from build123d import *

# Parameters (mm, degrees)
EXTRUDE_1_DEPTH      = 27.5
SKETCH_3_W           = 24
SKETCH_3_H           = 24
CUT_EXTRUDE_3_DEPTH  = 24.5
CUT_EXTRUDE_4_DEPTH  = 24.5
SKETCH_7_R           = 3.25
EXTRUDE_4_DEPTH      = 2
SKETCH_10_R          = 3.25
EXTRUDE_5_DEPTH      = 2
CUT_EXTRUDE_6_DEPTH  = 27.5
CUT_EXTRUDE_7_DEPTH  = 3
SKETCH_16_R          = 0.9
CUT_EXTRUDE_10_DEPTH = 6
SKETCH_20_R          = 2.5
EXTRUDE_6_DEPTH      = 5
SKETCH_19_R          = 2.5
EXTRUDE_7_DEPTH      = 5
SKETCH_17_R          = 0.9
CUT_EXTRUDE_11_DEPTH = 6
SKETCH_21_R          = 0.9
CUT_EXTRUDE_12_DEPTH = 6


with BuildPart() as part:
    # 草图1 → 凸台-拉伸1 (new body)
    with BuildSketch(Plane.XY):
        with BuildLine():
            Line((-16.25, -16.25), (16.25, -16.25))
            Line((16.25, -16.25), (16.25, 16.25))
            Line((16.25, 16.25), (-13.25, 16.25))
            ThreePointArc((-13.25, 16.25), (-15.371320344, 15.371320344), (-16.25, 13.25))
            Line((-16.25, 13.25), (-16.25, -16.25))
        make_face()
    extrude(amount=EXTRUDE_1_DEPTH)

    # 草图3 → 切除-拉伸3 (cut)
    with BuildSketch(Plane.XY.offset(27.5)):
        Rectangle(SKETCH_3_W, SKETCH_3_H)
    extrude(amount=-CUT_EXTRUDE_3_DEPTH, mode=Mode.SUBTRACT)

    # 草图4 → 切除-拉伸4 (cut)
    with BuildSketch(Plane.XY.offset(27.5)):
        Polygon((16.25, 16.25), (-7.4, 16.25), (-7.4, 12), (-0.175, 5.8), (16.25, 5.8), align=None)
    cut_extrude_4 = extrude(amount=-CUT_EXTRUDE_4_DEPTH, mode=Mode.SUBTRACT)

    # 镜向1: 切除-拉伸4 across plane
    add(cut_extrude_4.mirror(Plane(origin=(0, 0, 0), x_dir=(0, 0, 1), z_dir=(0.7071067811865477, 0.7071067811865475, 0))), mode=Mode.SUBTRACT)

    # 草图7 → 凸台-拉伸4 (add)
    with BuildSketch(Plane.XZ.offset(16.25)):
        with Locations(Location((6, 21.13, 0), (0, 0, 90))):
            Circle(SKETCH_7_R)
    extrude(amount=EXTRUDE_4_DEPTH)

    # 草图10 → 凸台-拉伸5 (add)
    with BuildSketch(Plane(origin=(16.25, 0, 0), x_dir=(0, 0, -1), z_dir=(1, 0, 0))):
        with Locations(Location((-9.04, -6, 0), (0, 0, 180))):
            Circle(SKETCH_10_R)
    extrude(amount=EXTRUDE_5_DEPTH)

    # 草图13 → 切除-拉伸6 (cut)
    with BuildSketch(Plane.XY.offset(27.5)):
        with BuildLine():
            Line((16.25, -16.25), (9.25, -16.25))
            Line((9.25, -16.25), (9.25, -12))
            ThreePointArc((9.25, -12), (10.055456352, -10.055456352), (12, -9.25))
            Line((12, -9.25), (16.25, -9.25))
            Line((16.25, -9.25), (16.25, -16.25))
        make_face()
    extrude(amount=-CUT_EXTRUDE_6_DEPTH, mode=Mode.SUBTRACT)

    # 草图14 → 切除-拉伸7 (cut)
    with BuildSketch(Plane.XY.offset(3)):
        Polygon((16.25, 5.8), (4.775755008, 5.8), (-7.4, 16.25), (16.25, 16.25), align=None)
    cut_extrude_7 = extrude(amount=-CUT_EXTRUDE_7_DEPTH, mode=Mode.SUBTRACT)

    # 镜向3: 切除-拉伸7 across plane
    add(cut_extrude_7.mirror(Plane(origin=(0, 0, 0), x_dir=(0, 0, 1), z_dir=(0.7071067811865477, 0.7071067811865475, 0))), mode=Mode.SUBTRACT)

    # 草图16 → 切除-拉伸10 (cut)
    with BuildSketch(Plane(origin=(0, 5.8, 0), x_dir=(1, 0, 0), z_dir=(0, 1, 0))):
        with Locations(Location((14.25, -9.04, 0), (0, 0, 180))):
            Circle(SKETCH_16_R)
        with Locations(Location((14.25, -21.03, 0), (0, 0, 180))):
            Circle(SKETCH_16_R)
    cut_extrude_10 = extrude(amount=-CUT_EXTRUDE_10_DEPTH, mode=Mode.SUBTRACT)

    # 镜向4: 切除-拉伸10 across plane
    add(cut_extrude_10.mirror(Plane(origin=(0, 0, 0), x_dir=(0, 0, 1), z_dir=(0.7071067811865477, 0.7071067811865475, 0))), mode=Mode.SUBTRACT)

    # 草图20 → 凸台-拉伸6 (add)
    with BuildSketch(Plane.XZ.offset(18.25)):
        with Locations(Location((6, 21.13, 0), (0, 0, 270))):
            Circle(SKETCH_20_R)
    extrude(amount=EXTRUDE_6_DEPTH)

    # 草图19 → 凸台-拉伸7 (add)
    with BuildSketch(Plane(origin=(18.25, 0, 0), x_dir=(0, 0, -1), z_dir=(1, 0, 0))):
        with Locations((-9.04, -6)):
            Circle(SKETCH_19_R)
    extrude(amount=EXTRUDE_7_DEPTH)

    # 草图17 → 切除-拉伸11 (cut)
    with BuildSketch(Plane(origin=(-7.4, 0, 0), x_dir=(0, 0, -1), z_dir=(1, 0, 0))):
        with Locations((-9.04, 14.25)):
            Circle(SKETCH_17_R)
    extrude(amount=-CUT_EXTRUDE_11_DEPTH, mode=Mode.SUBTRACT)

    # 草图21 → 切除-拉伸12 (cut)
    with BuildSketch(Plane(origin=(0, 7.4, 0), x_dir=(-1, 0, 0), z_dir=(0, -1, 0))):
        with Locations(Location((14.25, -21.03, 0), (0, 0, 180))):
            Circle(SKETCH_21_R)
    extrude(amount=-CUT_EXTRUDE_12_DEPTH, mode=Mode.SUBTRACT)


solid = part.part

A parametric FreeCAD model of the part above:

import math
import FreeCAD as App
import Part
import Sketcher
from FreeCAD import Vector
Q = App.Units.Quantity

doc = App.newDocument("Part")
params = doc.addObject("Spreadsheet::Sheet", "Params")
for row, (alias, value) in enumerate([
    ("sketch1_radius", "3 mm"),
    ("sketch1_width", "32.5 mm"),
    ("pad1_length", "27.5 mm"),
    ("sketch2_width", "24 mm"),
    ("pocket1_length", "24.5 mm"),
    ("sketch3_width", "23.65 mm"),
    ("sketch3_height", "4.25 mm"),
    ("sketch3_height2", "10.45 mm"),
    ("pocket2_length", "24.5 mm"),
    ("sketch4_diameter", "6.5 mm"),
    ("pad2_length", "2 mm"),
    ("sketch5_diameter", "6.5 mm"),
    ("pad3_length", "2 mm"),
    ("sketch6_width", "7 mm"),
    ("sketch6_radius", "2.75 mm"),
    ("pocket3_length", "27.5 mm"),
    ("sketch7_width", "23.65 mm"),
    ("sketch7_height", "10.45 mm"),
    ("pocket4_length", "3 mm"),
    ("sketch8_diameter", "1.8 mm"),
    ("pocket5_length", "6 mm"),
    ("sketch9_diameter", "5 mm"),
    ("pad4_length", "5 mm"),
    ("sketch10_diameter", "5 mm"),
    ("pad5_length", "5 mm"),
    ("sketch11_diameter", "1.8 mm"),
    ("pocket6_length", "6 mm"),
    ("sketch12_diameter", "1.8 mm"),
    ("pocket7_length", "6 mm"),
], start=1):
    params.set(f"A{row}", alias)
    params.set(f"B{row}", "=" + value)
    params.setAlias(f"B{row}", alias)

body = doc.addObject("PartDesign::Body", "Body")

# Sketch on XY plane
sketch1 = body.newObject("Sketcher::SketchObject", "Sketch")
sketch1.AttachmentSupport = (doc.getObject("XY_Plane"), [""])
sketch1.MapMode = "FlatFace"
sketch1.addGeometry(Part.LineSegment(Vector(-16.2, -16.2, 0), Vector(16.2, -16.2, 0)), False)
sketch1.addGeometry(Part.LineSegment(Vector(16.2, -16.2, 0), Vector(16.2, 16.2, 0)), False)
sketch1.addGeometry(Part.LineSegment(Vector(16.2, 16.2, 0), Vector(-13.2, 16.2, 0)), False)
sketch1.addGeometry(Part.ArcOfCircle(Part.Circle(Vector(-13.3, 13.3, 0), Vector(0, 0, 1), 3), math.radians(90), math.radians(180)), False)
sketch1.addGeometry(Part.LineSegment(Vector(-16.2, 13.2, 0), Vector(-16.2, -16.2, 0)), False)
sketch1.addConstraint(Sketcher.Constraint("Coincident", 0, 2, 1, 1))
sketch1.addConstraint(Sketcher.Constraint("Coincident", 1, 2, 2, 1))
sketch1.addConstraint(Sketcher.Constraint("Tangent", 2, 2, 3, 1))
sketch1.addConstraint(Sketcher.Constraint("Tangent", 3, 2, 4, 1))
sketch1.addConstraint(Sketcher.Constraint("Coincident", 4, 2, 0, 1))
sketch1.addConstraint(Sketcher.Constraint("Horizontal", 0))
sketch1.addConstraint(Sketcher.Constraint("Vertical", 1))
sketch1.addConstraint(Sketcher.Constraint("Horizontal", 2))
sketch1.addConstraint(Sketcher.Constraint("Vertical", 4))
sketch1.addConstraint(Sketcher.Constraint("Symmetric", 1, 2, 4, 2, -1, 1))
sketch1.addConstraint(Sketcher.Constraint("Equal", 0, 1))
sketch1.addConstraint(Sketcher.Constraint("Radius", 3, Q("3 mm")))
sketch1.addConstraint(Sketcher.Constraint("DistanceX", 0, 1, 0, 2, Q("32.5 mm")))
sketch1.setExpression("Constraints[11]", "Params.sketch1_radius")
sketch1.setExpression("Constraints[12]", "Params.sketch1_width")
pad1 = body.newObject("PartDesign::Pad", "Pad")
pad1.Profile = sketch1
pad1.setExpression("Length", "Params.pad1_length")

# Sketch on XY plane
sketch2 = body.newObject("Sketcher::SketchObject", "Sketch001")
sketch2.AttachmentSupport = (doc.getObject("XY_Plane"), [""])
sketch2.MapMode = "FlatFace"
sketch2.AttachmentOffset = App.Placement(Vector(0, 0, 27.5), App.Rotation())
sketch2.addGeometry(Part.LineSegment(Vector(-12, 12, 0), Vector(-12, -12, 0)), False)
sketch2.addGeometry(Part.LineSegment(Vector(-12, -12, 0), Vector(12, -12, 0)), False)
sketch2.addGeometry(Part.LineSegment(Vector(12, -12, 0), Vector(12, 12, 0)), False)
sketch2.addGeometry(Part.LineSegment(Vector(12, 12, 0), Vector(-12, 12, 0)), False)
sketch2.addConstraint(Sketcher.Constraint("Coincident", 0, 2, 1, 1))
sketch2.addConstraint(Sketcher.Constraint("Coincident", 1, 2, 2, 1))
sketch2.addConstraint(Sketcher.Constraint("Coincident", 2, 2, 3, 1))
sketch2.addConstraint(Sketcher.Constraint("Coincident", 3, 2, 0, 1))
sketch2.addConstraint(Sketcher.Constraint("Vertical", 0))
sketch2.addConstraint(Sketcher.Constraint("Horizontal", 1))
sketch2.addConstraint(Sketcher.Constraint("Vertical", 2))
sketch2.addConstraint(Sketcher.Constraint("Horizontal", 3))
sketch2.addConstraint(Sketcher.Constraint("Symmetric", 0, 2, 2, 2, -1, 1))
sketch2.addConstraint(Sketcher.Constraint("Equal", 3, 0))
sketch2.addConstraint(Sketcher.Constraint("DistanceX", 1, 1, 1, 2, Q("24 mm")))
sketch2.setExpression("Constraints[10]", "Params.sketch2_width")
pocket1 = body.newObject("PartDesign::Pocket", "Pocket")
pocket1.Profile = sketch2
pocket1.setExpression("Length", "Params.pocket1_length")

# Sketch on XY plane
sketch3 = body.newObject("Sketcher::SketchObject", "Sketch002")
sketch3.AttachmentSupport = (doc.getObject("XY_Plane"), [""])
sketch3.MapMode = "FlatFace"
sketch3.AttachmentOffset = App.Placement(Vector(0, 0, 27.5), App.Rotation())
sketch3.addGeometry(Part.LineSegment(Vector(16.2, 16.2, 0), Vector(-7.4, 16.2, 0)), False)
sketch3.addGeometry(Part.LineSegment(Vector(-7.4, 16.2, 0), Vector(-7.4, 12, 0)), False)
sketch3.addGeometry(Part.LineSegment(Vector(-7.4, 12, 0), Vector(-0.2, 5.8, 0)), False)
sketch3.addGeometry(Part.LineSegment(Vector(-0.2, 5.8, 0), Vector(16.2, 5.8, 0)), False)
sketch3.addGeometry(Part.LineSegment(Vector(16.2, 5.8, 0), Vector(16.2, 16.2, 0)), False)
sketch3.addConstraint(Sketcher.Constraint("Coincident", 0, 2, 1, 1))
sketch3.addConstraint(Sketcher.Constraint("Coincident", 1, 2, 2, 1))
sketch3.addConstraint(Sketcher.Constraint("Coincident", 2, 2, 3, 1))
sketch3.addConstraint(Sketcher.Constraint("Coincident", 3, 2, 4, 1))
sketch3.addConstraint(Sketcher.Constraint("Coincident", 4, 2, 0, 1))
sketch3.addConstraint(Sketcher.Constraint("Horizontal", 0))
sketch3.addConstraint(Sketcher.Constraint("Vertical", 1))
sketch3.addConstraint(Sketcher.Constraint("Horizontal", 3))
sketch3.addConstraint(Sketcher.Constraint("Vertical", 4))
sketch3.addConstraint(Sketcher.Constraint("DistanceY", -1, 1, 1, 2, Q("12 mm")))
sketch3.addConstraint(Sketcher.Constraint("DistanceX", 0, 2, 0, 1, Q("23.65 mm")))
sketch3.addConstraint(Sketcher.Constraint("DistanceY", 1, 2, 1, 1, Q("4.25 mm")))
sketch3.addConstraint(Sketcher.Constraint("DistanceY", 4, 1, 4, 2, Q("10.45 mm")))
sketch3.addConstraint(Sketcher.Constraint("DistanceX", 0, 2, -1, 1, Q("7.4 mm")))
sketch3.addConstraint(Sketcher.Constraint("DistanceX", 3, 1, 3, 2, Q("16.425 mm")))
sketch3.setExpression("Constraints[10]", "Params.sketch3_width")
sketch3.setExpression("Constraints[11]", "Params.sketch3_height")
sketch3.setExpression("Constraints[12]", "Params.sketch3_height2")
pocket2 = body.newObject("PartDesign::Pocket", "Pocket001")
pocket2.Profile = sketch3
pocket2.setExpression("Length", "Params.pocket2_length")
doc.recompute()

datumplane = body.newObject("PartDesign::Plane", "DatumPlane")
datumplane.Placement = App.Placement(Vector(0, 0, 0), App.Rotation(Vector(0.707106781, -0.707106781, 0), Vector(0, 0, -1), Vector(0.707106781, 0.707106781, 0), "ZXY"))
mirrored = body.newObject("PartDesign::Mirrored", "Mirrored")
mirrored.Originals = [pocket2]
mirrored.MirrorPlane = (datumplane, [""])
body.Tip = mirrored

# Sketch on XZ plane
sketch4 = body.newObject("Sketcher::SketchObject", "Sketch003")
sketch4.AttachmentSupport = (doc.getObject("XZ_Plane"), [""])
sketch4.MapMode = "FlatFace"
sketch4.AttachmentOffset = App.Placement(Vector(0, 0, 16.25), App.Rotation())
sketch4.addGeometry(Part.Circle(Vector(6, 21.1, 0), Vector(0, 0, 1), 3.2), False)
sketch4.addConstraint(Sketcher.Constraint("Diameter", 0, Q("6.5 mm")))
sketch4.addConstraint(Sketcher.Constraint("DistanceX", -1, 1, 0, 3, Q("6 mm")))
sketch4.addConstraint(Sketcher.Constraint("DistanceY", -1, 1, 0, 3, Q("21.13 mm")))
sketch4.setExpression("Constraints[0]", "Params.sketch4_diameter")
pad2 = body.newObject("PartDesign::Pad", "Pad001")
pad2.Profile = sketch4
pad2.setExpression("Length", "Params.pad2_length")

# Sketch on YZ plane
sketch5 = body.newObject("Sketcher::SketchObject", "Sketch004")
sketch5.AttachmentSupport = (doc.getObject("YZ_Plane"), [""])
sketch5.MapMode = "FlatFace"
sketch5.AttachmentOffset = App.Placement(Vector(0, 0, 16.25), App.Rotation())
sketch5.addGeometry(Part.Circle(Vector(-6, 9, 0), Vector(0, 0, 1), 3.2), False)
sketch5.addConstraint(Sketcher.Constraint("Diameter", 0, Q("6.5 mm")))
sketch5.addConstraint(Sketcher.Constraint("DistanceX", 0, 3, -1, 1, Q("6 mm")))
sketch5.addConstraint(Sketcher.Constraint("DistanceY", -1, 1, 0, 3, Q("9.04 mm")))
sketch5.setExpression("Constraints[0]", "Params.sketch5_diameter")
pad3 = body.newObject("PartDesign::Pad", "Pad002")
pad3.Profile = sketch5
pad3.setExpression("Length", "Params.pad3_length")

# Sketch on XY plane
sketch6 = body.newObject("Sketcher::SketchObject", "Sketch005")
sketch6.AttachmentSupport = (doc.getObject("XY_Plane"), [""])
sketch6.MapMode = "FlatFace"
sketch6.AttachmentOffset = App.Placement(Vector(0, 0, 27.5), App.Rotation())
sketch6.addGeometry(Part.LineSegment(Vector(9.2, -16.2, 0), Vector(16.2, -16.2, 0)), False)
sketch6.addGeometry(Part.LineSegment(Vector(16.2, -16.2, 0), Vector(16.2, -9.2, 0)), False)
sketch6.addGeometry(Part.LineSegment(Vector(16.2, -9.2, 0), Vector(12, -9.2, 0)), False)
sketch6.addGeometry(Part.ArcOfCircle(Part.Circle(Vector(12, -12, 0), Vector(0, 0, 1), 2.8), math.radians(90), math.radians(180)), False)
sketch6.addGeometry(Part.LineSegment(Vector(9.2, -12, 0), Vector(9.2, -16.2, 0)), False)
sketch6.addConstraint(Sketcher.Constraint("Coincident", 0, 2, 1, 1))
sketch6.addConstraint(Sketcher.Constraint("Coincident", 1, 2, 2, 1))
sketch6.addConstraint(Sketcher.Constraint("Tangent", 2, 2, 3, 1))
sketch6.addConstraint(Sketcher.Constraint("Tangent", 3, 2, 4, 1))
sketch6.addConstraint(Sketcher.Constraint("Coincident", 4, 2, 0, 1))
sketch6.addConstraint(Sketcher.Constraint("Horizontal", 0))
sketch6.addConstraint(Sketcher.Constraint("Vertical", 1))
sketch6.addConstraint(Sketcher.Constraint("Horizontal", 2))
sketch6.addConstraint(Sketcher.Constraint("Vertical", 4))
sketch6.addConstraint(Sketcher.Constraint("Equal", 0, 1))
sketch6.addConstraint(Sketcher.Constraint("DistanceX", 0, 1, 0, 2, Q("7 mm")))
sketch6.addConstraint(Sketcher.Constraint("Radius", 3, Q("2.75 mm")))
sketch6.addConstraint(Sketcher.Constraint("DistanceX", -1, 1, 3, 3, Q("12 mm")))
sketch6.addConstraint(Sketcher.Constraint("DistanceY", 3, 3, -1, 1, Q("12 mm")))
sketch6.setExpression("Constraints[10]", "Params.sketch6_width")
sketch6.setExpression("Constraints[11]", "Params.sketch6_radius")
pocket3 = body.newObject("PartDesign::Pocket", "Pocket002")
pocket3.Profile = sketch6
pocket3.setExpression("Length", "Params.pocket3_length")

# Sketch on XY plane
sketch7 = body.newObject("Sketcher::SketchObject", "Sketch006")
sketch7.AttachmentSupport = (doc.getObject("XY_Plane"), [""])
sketch7.MapMode = "FlatFace"
sketch7.AttachmentOffset = App.Placement(Vector(0, 0, 3), App.Rotation())
sketch7.addGeometry(Part.LineSegment(Vector(5, 6, 0), Vector(16, 6, 0)), False)
sketch7.addGeometry(Part.LineSegment(Vector(16, 6, 0), Vector(16, 16, 0)), False)
sketch7.addGeometry(Part.LineSegment(Vector(16, 16, 0), Vector(-7, 16, 0)), False)
sketch7.addGeometry(Part.LineSegment(Vector(-7, 16, 0), Vector(5, 6, 0)), False)
sketch7.addConstraint(Sketcher.Constraint("Coincident", 0, 2, 1, 1))
sketch7.addConstraint(Sketcher.Constraint("Coincident", 1, 2, 2, 1))
sketch7.addConstraint(Sketcher.Constraint("Coincident", 2, 2, 3, 1))
sketch7.addConstraint(Sketcher.Constraint("Coincident", 3, 2, 0, 1))
sketch7.addConstraint(Sketcher.Constraint("Horizontal", 0))
sketch7.addConstraint(Sketcher.Constraint("Vertical", 1))
sketch7.addConstraint(Sketcher.Constraint("Horizontal", 2))
sketch7.addConstraint(Sketcher.Constraint("DistanceX", 2, 2, 2, 1, Q("23.65 mm")))
sketch7.addConstraint(Sketcher.Constraint("DistanceY", 1, 1, 1, 2, Q("10.45 mm")))
sketch7.addConstraint(Sketcher.Constraint("DistanceY", -1, 1, 0, 2, Q("5.8 mm")))
sketch7.addConstraint(Sketcher.Constraint("DistanceX", 2, 2, -1, 1, Q("7.4 mm")))
sketch7.addConstraint(Sketcher.Constraint("DistanceX", 0, 1, 0, 2, Q("11.474245 mm")))
sketch7.setExpression("Constraints[7]", "Params.sketch7_width")
sketch7.setExpression("Constraints[8]", "Params.sketch7_height")
pocket4 = body.newObject("PartDesign::Pocket", "Pocket003")
pocket4.Profile = sketch7
pocket4.setExpression("Length", "Params.pocket4_length")
doc.recompute()

datumplane2 = body.newObject("PartDesign::Plane", "DatumPlane001")
datumplane2.Placement = App.Placement(Vector(0, 0, 0), App.Rotation(Vector(0.707106781, -0.707106781, 0), Vector(0, 0, -1), Vector(0.707106781, 0.707106781, 0), "ZXY"))
mirrored2 = body.newObject("PartDesign::Mirrored", "Mirrored001")
mirrored2.Originals = [pocket4]
mirrored2.MirrorPlane = (datumplane2, [""])
body.Tip = mirrored2

# Sketch on XZ plane
sketch8 = body.newObject("Sketcher::SketchObject", "Sketch007")
sketch8.AttachmentSupport = (doc.getObject("XZ_Plane"), [""])
sketch8.MapMode = "FlatFace"
sketch8.AttachmentOffset = App.Placement(Vector(0, 0, -5.8), App.Rotation())
sketch8.addGeometry(Part.Circle(Vector(14.2, 9, 0), Vector(0, 0, 1), 0.9), False)
sketch8.addGeometry(Part.Circle(Vector(14.2, 21, 0), Vector(0, 0, 1), 0.9), False)
sketch8.addConstraint(Sketcher.Constraint("Equal", 0, 1))
sketch8.addConstraint(Sketcher.Constraint("Vertical", 0, 3, 1, 3))
sketch8.addConstraint(Sketcher.Constraint("Diameter", 0, Q("1.8 mm")))
sketch8.addConstraint(Sketcher.Constraint("DistanceX", -1, 1, 0, 3, Q("14.25 mm")))
sketch8.addConstraint(Sketcher.Constraint("DistanceY", -1, 1, 0, 3, Q("9.04 mm")))
sketch8.addConstraint(Sketcher.Constraint("DistanceY", -1, 1, 1, 3, Q("21.03 mm")))
sketch8.setExpression("Constraints[2]", "Params.sketch8_diameter")
pocket5 = body.newObject("PartDesign::Pocket", "Pocket004")
pocket5.Profile = sketch8
pocket5.setExpression("Length", "Params.pocket5_length")
pocket5.Reversed = True
doc.recompute()

datumplane3 = body.newObject("PartDesign::Plane", "DatumPlane002")
datumplane3.Placement = App.Placement(Vector(0, 0, 0), App.Rotation(Vector(0.707106781, -0.707106781, 0), Vector(0, 0, -1), Vector(0.707106781, 0.707106781, 0), "ZXY"))
mirrored3 = body.newObject("PartDesign::Mirrored", "Mirrored002")
mirrored3.Originals = [pocket5]
mirrored3.MirrorPlane = (datumplane3, [""])
body.Tip = mirrored3

# Sketch on XZ plane
sketch9 = body.newObject("Sketcher::SketchObject", "Sketch008")
sketch9.AttachmentSupport = (doc.getObject("XZ_Plane"), [""])
sketch9.MapMode = "FlatFace"
sketch9.AttachmentOffset = App.Placement(Vector(0, 0, 18.25), App.Rotation())
sketch9.addGeometry(Part.Circle(Vector(6, 21.1, 0), Vector(0, 0, 1), 2.5), False)
sketch9.addConstraint(Sketcher.Constraint("Diameter", 0, Q("5 mm")))
sketch9.addConstraint(Sketcher.Constraint("DistanceX", -1, 1, 0, 3, Q("6 mm")))
sketch9.addConstraint(Sketcher.Constraint("DistanceY", -1, 1, 0, 3, Q("21.13 mm")))
sketch9.setExpression("Constraints[0]", "Params.sketch9_diameter")
pad4 = body.newObject("PartDesign::Pad", "Pad003")
pad4.Profile = sketch9
pad4.setExpression("Length", "Params.pad4_length")

# Sketch on YZ plane
sketch10 = body.newObject("Sketcher::SketchObject", "Sketch009")
sketch10.AttachmentSupport = (doc.getObject("YZ_Plane"), [""])
sketch10.MapMode = "FlatFace"
sketch10.AttachmentOffset = App.Placement(Vector(0, 0, 18.25), App.Rotation())
sketch10.addGeometry(Part.Circle(Vector(-6, 9, 0), Vector(0, 0, 1), 2.5), False)
sketch10.addConstraint(Sketcher.Constraint("Diameter", 0, Q("5 mm")))
sketch10.addConstraint(Sketcher.Constraint("DistanceX", 0, 3, -1, 1, Q("6 mm")))
sketch10.addConstraint(Sketcher.Constraint("DistanceY", -1, 1, 0, 3, Q("9.04 mm")))
sketch10.setExpression("Constraints[0]", "Params.sketch10_diameter")
pad5 = body.newObject("PartDesign::Pad", "Pad004")
pad5.Profile = sketch10
pad5.setExpression("Length", "Params.pad5_length")

# Sketch on YZ plane
sketch11 = body.newObject("Sketcher::SketchObject", "Sketch010")
sketch11.AttachmentSupport = (doc.getObject("YZ_Plane"), [""])
sketch11.MapMode = "FlatFace"
sketch11.AttachmentOffset = App.Placement(Vector(0, 0, -7.4), App.Rotation())
sketch11.addGeometry(Part.Circle(Vector(14.2, 9, 0), Vector(0, 0, 1), 0.9), False)
sketch11.addConstraint(Sketcher.Constraint("Diameter", 0, Q("1.8 mm")))
sketch11.addConstraint(Sketcher.Constraint("DistanceX", -1, 1, 0, 3, Q("14.25 mm")))
sketch11.addConstraint(Sketcher.Constraint("DistanceY", -1, 1, 0, 3, Q("9.04 mm")))
sketch11.setExpression("Constraints[0]", "Params.sketch11_diameter")
pocket6 = body.newObject("PartDesign::Pocket", "Pocket005")
pocket6.Profile = sketch11
pocket6.setExpression("Length", "Params.pocket6_length")

# Sketch on XZ plane
sketch12 = body.newObject("Sketcher::SketchObject", "Sketch011")
sketch12.AttachmentSupport = (doc.getObject("XZ_Plane"), [""])
sketch12.MapMode = "FlatFace"
sketch12.AttachmentOffset = App.Placement(Vector(0, 0, -7.4), App.Rotation())
sketch12.addGeometry(Part.Circle(Vector(-14.2, 21, 0), Vector(0, 0, 1), 0.9), False)
sketch12.addConstraint(Sketcher.Constraint("Diameter", 0, Q("1.8 mm")))
sketch12.addConstraint(Sketcher.Constraint("DistanceX", 0, 3, -1, 1, Q("14.25 mm")))
sketch12.addConstraint(Sketcher.Constraint("DistanceY", -1, 1, 0, 3, Q("21.03 mm")))
sketch12.setExpression("Constraints[0]", "Params.sketch12_diameter")
pocket7 = body.newObject("PartDesign::Pocket", "Pocket006")
pocket7.Profile = sketch12
pocket7.setExpression("Length", "Params.pocket7_length")

doc.recompute()
